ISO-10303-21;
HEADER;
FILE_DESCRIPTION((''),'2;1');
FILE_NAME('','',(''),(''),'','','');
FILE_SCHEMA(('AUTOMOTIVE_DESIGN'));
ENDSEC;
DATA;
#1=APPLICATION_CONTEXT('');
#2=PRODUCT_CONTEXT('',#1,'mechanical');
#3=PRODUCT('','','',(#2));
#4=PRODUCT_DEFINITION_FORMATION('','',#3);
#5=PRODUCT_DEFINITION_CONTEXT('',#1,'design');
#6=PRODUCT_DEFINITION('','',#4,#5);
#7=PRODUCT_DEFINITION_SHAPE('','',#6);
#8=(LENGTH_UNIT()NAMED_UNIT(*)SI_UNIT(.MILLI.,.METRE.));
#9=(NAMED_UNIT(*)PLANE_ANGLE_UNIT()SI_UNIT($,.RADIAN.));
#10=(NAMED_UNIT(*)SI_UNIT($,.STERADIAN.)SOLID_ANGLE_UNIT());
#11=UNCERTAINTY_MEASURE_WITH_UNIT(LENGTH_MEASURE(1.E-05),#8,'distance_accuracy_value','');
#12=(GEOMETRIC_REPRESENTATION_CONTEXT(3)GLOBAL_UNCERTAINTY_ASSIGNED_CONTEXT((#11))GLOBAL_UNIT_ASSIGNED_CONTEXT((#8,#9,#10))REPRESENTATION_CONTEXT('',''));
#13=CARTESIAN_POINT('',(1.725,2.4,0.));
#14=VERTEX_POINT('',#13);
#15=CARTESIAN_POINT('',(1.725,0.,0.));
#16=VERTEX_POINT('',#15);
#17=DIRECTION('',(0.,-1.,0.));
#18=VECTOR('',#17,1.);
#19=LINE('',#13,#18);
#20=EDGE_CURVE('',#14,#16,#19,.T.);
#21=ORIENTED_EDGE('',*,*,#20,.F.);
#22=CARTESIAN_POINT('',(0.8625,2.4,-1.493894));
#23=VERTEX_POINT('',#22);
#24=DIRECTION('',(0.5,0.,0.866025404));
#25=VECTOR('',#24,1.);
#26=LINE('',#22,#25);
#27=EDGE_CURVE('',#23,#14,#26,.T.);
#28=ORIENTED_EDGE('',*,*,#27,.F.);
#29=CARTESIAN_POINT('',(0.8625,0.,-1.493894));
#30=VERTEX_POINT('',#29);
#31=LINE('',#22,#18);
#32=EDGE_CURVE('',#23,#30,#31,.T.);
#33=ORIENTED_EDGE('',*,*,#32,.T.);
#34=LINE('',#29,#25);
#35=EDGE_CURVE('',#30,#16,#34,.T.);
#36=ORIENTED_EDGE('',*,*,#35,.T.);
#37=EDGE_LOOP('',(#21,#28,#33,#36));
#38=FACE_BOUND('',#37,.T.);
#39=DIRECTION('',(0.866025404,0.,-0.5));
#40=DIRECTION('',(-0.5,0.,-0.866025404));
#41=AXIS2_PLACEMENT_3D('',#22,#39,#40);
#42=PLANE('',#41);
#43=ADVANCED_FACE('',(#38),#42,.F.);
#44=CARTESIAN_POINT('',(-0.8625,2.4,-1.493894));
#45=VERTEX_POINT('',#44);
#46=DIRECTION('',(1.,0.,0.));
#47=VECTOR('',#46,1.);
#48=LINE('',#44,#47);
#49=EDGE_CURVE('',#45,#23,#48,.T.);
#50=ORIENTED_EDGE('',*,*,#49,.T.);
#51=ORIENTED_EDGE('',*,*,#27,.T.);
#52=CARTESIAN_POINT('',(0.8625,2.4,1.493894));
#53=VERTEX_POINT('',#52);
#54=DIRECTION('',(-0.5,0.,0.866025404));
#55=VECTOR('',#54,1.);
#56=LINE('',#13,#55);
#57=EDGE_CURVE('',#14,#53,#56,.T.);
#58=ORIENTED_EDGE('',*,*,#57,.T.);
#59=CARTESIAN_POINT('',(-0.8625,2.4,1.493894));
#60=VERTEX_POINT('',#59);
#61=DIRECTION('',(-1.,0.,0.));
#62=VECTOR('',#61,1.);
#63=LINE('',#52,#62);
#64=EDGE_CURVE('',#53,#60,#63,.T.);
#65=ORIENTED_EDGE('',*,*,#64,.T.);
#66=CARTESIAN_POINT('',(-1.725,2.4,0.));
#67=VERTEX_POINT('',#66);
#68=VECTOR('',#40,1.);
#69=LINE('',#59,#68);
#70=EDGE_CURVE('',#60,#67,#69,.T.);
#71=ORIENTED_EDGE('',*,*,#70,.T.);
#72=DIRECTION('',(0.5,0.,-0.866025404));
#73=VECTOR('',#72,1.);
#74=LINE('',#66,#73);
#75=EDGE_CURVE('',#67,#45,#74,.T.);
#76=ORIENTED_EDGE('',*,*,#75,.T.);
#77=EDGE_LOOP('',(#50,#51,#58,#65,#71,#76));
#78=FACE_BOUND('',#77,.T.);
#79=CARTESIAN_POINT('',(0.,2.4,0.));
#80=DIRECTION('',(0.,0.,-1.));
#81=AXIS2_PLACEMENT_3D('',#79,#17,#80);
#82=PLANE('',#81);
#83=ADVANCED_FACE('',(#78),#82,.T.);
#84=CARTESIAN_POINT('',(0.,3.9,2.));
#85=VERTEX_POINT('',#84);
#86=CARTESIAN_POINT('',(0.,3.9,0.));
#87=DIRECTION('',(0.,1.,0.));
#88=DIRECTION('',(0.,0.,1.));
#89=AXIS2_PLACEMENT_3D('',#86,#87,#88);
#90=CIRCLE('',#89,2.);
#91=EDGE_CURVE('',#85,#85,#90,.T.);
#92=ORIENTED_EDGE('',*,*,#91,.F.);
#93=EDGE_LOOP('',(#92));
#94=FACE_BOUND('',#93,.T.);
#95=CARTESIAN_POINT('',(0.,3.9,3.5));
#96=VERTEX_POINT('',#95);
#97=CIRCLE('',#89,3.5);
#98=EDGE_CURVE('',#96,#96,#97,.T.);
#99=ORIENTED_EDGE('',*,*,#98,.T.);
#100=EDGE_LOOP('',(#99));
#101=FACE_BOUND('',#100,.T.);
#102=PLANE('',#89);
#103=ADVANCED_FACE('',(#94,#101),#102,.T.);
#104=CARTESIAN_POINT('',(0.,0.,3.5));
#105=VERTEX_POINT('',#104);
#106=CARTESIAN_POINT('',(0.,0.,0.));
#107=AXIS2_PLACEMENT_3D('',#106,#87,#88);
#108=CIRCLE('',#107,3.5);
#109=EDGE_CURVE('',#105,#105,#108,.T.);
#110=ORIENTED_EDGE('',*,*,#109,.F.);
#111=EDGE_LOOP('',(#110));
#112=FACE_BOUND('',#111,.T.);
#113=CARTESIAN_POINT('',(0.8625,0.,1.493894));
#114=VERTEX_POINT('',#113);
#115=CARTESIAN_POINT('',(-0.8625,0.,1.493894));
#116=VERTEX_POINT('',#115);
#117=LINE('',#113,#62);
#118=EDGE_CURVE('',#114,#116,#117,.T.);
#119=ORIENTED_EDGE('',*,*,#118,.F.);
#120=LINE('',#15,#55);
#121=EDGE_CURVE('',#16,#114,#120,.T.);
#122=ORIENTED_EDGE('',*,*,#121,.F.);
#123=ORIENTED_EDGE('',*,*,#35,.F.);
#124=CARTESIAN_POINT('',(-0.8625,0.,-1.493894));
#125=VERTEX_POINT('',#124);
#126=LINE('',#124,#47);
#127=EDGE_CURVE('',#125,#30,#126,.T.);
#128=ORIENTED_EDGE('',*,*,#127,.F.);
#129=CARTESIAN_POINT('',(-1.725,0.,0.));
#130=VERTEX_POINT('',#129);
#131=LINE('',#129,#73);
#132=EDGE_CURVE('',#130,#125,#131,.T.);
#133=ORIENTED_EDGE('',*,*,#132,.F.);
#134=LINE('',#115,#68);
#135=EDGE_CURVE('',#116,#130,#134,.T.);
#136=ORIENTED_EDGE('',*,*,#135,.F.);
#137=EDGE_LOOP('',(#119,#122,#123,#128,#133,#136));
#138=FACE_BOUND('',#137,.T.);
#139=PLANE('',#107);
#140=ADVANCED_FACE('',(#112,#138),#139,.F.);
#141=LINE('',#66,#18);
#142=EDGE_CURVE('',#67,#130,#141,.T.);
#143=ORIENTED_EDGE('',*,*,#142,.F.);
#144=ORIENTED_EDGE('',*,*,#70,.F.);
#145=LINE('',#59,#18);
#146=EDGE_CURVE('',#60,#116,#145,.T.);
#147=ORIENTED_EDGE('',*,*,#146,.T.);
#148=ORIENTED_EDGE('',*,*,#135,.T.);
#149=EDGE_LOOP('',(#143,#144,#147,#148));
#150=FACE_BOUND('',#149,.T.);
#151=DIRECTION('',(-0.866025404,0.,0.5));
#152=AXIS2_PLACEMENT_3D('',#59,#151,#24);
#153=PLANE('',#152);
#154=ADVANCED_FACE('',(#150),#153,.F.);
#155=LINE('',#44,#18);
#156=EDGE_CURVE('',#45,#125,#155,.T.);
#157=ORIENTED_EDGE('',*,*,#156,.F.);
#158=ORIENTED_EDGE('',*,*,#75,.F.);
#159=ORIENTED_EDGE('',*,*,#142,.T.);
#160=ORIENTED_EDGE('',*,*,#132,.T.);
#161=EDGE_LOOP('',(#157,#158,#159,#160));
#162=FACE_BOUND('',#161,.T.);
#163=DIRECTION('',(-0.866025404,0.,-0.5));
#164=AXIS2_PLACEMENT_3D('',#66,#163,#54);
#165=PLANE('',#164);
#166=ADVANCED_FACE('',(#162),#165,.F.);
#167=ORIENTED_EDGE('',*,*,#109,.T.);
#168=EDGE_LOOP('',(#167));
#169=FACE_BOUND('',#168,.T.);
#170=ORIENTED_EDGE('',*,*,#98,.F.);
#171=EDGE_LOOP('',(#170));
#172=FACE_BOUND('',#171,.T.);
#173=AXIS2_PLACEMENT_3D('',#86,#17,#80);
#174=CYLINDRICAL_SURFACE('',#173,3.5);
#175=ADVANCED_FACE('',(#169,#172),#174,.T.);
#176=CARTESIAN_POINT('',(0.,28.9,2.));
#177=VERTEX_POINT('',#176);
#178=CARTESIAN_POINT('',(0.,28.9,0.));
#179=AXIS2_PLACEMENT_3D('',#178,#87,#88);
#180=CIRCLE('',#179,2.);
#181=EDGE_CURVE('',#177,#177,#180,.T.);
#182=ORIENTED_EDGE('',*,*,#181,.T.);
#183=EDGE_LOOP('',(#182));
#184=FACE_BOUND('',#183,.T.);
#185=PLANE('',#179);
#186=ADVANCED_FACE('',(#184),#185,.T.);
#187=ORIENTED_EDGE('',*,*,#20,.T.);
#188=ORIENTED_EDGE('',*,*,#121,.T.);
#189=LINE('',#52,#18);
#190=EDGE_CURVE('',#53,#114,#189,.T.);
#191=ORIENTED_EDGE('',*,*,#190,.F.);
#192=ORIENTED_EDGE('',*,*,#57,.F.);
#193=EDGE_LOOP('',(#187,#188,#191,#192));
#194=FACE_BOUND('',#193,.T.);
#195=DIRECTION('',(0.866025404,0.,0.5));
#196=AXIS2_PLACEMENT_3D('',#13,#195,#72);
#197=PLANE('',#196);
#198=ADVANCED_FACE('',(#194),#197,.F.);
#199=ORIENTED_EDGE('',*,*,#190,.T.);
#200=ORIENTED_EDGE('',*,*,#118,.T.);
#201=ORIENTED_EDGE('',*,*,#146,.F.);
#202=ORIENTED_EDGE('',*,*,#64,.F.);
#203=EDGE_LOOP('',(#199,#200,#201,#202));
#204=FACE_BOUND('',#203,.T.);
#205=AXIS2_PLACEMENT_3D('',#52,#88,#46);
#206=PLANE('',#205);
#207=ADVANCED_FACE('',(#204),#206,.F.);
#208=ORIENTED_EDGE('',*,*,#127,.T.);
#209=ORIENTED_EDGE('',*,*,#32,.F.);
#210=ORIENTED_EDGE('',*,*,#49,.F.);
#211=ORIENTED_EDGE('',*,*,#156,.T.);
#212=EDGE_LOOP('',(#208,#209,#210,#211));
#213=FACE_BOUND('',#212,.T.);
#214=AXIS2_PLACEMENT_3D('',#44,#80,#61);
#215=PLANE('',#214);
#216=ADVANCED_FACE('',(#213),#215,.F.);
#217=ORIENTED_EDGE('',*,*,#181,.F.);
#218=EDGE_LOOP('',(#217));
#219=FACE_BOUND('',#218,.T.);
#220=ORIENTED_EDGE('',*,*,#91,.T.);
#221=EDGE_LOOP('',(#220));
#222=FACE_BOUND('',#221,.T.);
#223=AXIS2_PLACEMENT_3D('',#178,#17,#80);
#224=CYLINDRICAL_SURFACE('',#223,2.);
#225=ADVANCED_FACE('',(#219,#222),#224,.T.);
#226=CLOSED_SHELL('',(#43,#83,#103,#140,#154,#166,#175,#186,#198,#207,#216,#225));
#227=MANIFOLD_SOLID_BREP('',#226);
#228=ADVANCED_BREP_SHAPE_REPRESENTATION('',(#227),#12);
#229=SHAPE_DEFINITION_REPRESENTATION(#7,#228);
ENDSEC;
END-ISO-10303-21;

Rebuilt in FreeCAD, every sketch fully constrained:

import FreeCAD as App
import Part
import Sketcher
from FreeCAD import Vector
Q = App.Units.Quantity


def add_polygon(sketch, points):
    """Adds a closed chain of lines whose ends are joined by coincident constraints."""
    first, n = sketch.GeometryCount, len(points)
    for a, b in zip(points, points[1:] + points[:1]):
        sketch.addGeometry(Part.LineSegment(App.Vector(*a, 0), App.Vector(*b, 0)), False)
    for i in range(n):
        sketch.addConstraint(Sketcher.Constraint("Coincident", first + i, 2, first + (i + 1) % n, 1))

doc = App.newDocument("Part")
body = doc.addObject("PartDesign::Body", "Body")

sketch1 = body.newObject("Sketcher::SketchObject", "Sketch")
sketch1.AttachmentSupport = (doc.getObject("XZ_Plane"), [""])
sketch1.MapMode = "FlatFace"
sketch1.addGeometry(Part.Circle(Vector(0, 0, 0), Vector(0, 0, 1), 3.5), False)
sketch1.addConstraint(Sketcher.Constraint("Coincident", 0, 3, -1, 1))
sketch1.addConstraint(Sketcher.Constraint("Diameter", 0, Q("7 mm")))
pad1 = body.newObject("PartDesign::Pad", "Pad")
pad1.Profile = sketch1
pad1.Length = 3.9
pad1.Reversed = True

sketch2 = body.newObject("Sketcher::SketchObject", "Sketch001")
sketch2.AttachmentSupport = (doc.getObject("XZ_Plane"), [""])
sketch2.MapMode = "FlatFace"
sketch2.AttachmentOffset = App.Placement(Vector(0, 0, -3.9), App.Rotation())
sketch2.addGeometry(Part.Circle(Vector(0, 0, 0), Vector(0, 0, 1), 2), False)
sketch2.addConstraint(Sketcher.Constraint("Coincident", 0, 3, -1, 1))
sketch2.addConstraint(Sketcher.Constraint("Diameter", 0, Q("4 mm")))
pad2 = body.newObject("PartDesign::Pad", "Pad001")
pad2.Profile = sketch2
pad2.Length = 25
pad2.Reversed = True

sketch3 = body.newObject("Sketcher::SketchObject", "Sketch002")
sketch3.AttachmentSupport = (doc.getObject("XZ_Plane"), [""])
sketch3.MapMode = "FlatFace"
add_polygon(sketch3, [(1.725, 0), (0.8625, 1.493894), (-0.8625, 1.493894), (-1.725, 0), (-0.8625, -1.493894), (0.8625, -1.493894)])
sketch3.addConstraint(Sketcher.Constraint("Horizontal", 1))
sketch3.addConstraint(Sketcher.Constraint("Horizontal", 4))
sketch3.addConstraint(Sketcher.Constraint("Symmetric", 0, 2, 3, 2, -1, 1))
sketch3.addConstraint(Sketcher.Constraint("Symmetric", 2, 2, 5, 2, -1, 1))
sketch3.addConstraint(Sketcher.Constraint("PointOnObject", 2, 2, -1))
sketch3.addConstraint(Sketcher.Constraint("Parallel", 2, 5))
sketch3.addConstraint(Sketcher.Constraint("Vertical", 1, 2, 3, 2))
sketch3.addConstraint(Sketcher.Constraint("Angle", 0, Q("120 deg")))
sketch3.addConstraint(Sketcher.Constraint("DistanceX", 1, 2, 1, 1, Q("1.725 mm")))
sketch3.addConstraint(Sketcher.Constraint("DistanceX", 2, 2, 5, 2, Q("3.45 mm")))
pocket1 = body.newObject("PartDesign::Pocket", "Pocket")
pocket1.Profile = sketch3
pocket1.Length = 2.4

doc.recompute()
